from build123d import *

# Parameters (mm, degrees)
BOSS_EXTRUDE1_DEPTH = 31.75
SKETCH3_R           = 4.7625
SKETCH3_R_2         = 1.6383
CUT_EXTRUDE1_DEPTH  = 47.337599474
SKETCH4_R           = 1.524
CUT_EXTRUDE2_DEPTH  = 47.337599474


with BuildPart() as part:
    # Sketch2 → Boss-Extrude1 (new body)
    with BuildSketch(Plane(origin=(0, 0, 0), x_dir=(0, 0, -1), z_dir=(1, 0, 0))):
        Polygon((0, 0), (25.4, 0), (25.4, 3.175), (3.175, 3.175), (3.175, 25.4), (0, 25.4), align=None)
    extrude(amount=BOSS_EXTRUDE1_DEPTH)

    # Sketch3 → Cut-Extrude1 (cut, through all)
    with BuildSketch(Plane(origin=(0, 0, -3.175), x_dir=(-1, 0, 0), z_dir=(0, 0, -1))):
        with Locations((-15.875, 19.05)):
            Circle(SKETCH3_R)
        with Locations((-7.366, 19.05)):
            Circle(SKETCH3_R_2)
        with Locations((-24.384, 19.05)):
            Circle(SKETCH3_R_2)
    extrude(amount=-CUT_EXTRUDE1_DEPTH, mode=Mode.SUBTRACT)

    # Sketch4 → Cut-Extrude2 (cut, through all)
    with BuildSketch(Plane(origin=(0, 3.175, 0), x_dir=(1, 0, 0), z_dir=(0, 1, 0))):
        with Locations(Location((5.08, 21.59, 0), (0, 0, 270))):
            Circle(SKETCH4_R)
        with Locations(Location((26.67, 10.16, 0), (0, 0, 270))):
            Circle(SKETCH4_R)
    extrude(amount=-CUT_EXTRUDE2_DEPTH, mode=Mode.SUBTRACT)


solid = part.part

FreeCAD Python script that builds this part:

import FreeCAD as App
import Part
import Sketcher
Q = App.Units.Quantity


def add_polygon(sketch, points):
    """Adds a closed chain of lines whose ends are joined by coincident constraints."""
    first, n = sketch.GeometryCount, len(points)
    for a, b in zip(points, points[1:] + points[:1]):
        sketch.addGeometry(Part.LineSegment(App.Vector(*a, 0), App.Vector(*b, 0)), False)
    for i in range(n):
        sketch.addConstraint(Sketcher.Constraint("Coincident", first + i, 2, first + (i + 1) % n, 1))

doc = App.newDocument("Part")
body = doc.addObject("PartDesign::Body", "Body")

# Sketch on YZ plane
sketch1 = body.newObject("Sketcher::SketchObject", "Sketch")
sketch1.AttachmentSupport = (doc.getObject("YZ_Plane"), [""])
sketch1.MapMode = "FlatFace"
add_polygon(sketch1, [(0, 0), (0, -25.4), (3.2, -25.4), (3.2, -3.2), (25.4, -3.2), (25.4, 0)])  # lines 0-5
sketch1.addConstraint([
    Sketcher.Constraint("Vertical", 0),
    Sketcher.Constraint("Horizontal", 1),
    Sketcher.Constraint("Vertical", 2),
    Sketcher.Constraint("Horizontal", 3),
    Sketcher.Constraint("Vertical", 4),
    Sketcher.Constraint("Horizontal", 5),
    Sketcher.Constraint("Coincident", 5, 2, -1, 1),
    Sketcher.Constraint("Equal", 5, 0),
    Sketcher.Constraint("Equal", 3, 2),
    Sketcher.Constraint("DistanceX", 5, 2, 5, 1, Q("1 in")),
    Sketcher.Constraint("DistanceX", 1, 1, 1, 2, Q("0.125 in")),
])
pad1 = body.newObject("PartDesign::Pad", "Pad")
pad1.Profile = sketch1
pad1.Length = Q("1.25 in")

# Sketch on XY plane
sketch2 = body.newObject("Sketcher::SketchObject", "Sketch001")
sketch2.AttachmentSupport = (doc.getObject("XY_Plane"), [""])
sketch2.MapMode = "FlatFace"
sketch2.AttachmentOffset = App.Placement(App.Vector(0, 0, -0.125 * 25.4), App.Rotation())
sketch2.addGeometry([
    Part.Circle(App.Vector(15.9, 19.1, 0), App.Vector(0, 0, 1), 4.8),
    Part.Circle(App.Vector(7.4, 19.1, 0), App.Vector(0, 0, 1), 1.6),
    Part.Circle(App.Vector(24.4, 19.1, 0), App.Vector(0, 0, 1), 1.6),
], False)
sketch2.addConstraint([
    Sketcher.Constraint("Equal", 1, 2),
    Sketcher.Constraint("Horizontal", 0, 3, 1, 3),
    Sketcher.Constraint("Horizontal", 1, 3, 2, 3),
    Sketcher.Constraint("Diameter", 0, Q("0.375 in")),
    Sketcher.Constraint("Diameter", 1, Q("0.129 in")),
    Sketcher.Constraint("DistanceY", -1, 1, 0, 3, Q("0.75 in")),
    Sketcher.Constraint("DistanceX", -1, 1, 1, 3, Q("0.29 in")),
    Sketcher.Constraint("DistanceX", -1, 1, 2, 3, Q("0.96 in")),
    Sketcher.Constraint("DistanceX", -1, 1, 0, 3, Q("0.625 in")),
])
pocket1 = body.newObject("PartDesign::Pocket", "Pocket")
pocket1.Profile = sketch2
pocket1.Type = "ThroughAll"
pocket1.Reversed = True

# Sketch on XZ plane
sketch3 = body.newObject("Sketcher::SketchObject", "Sketch002")
sketch3.AttachmentSupport = (doc.getObject("XZ_Plane"), [""])
sketch3.MapMode = "FlatFace"
sketch3.AttachmentOffset = App.Placement(App.Vector(0, 0, -0.125 * 25.4), App.Rotation())
sketch3.addGeometry([
    Part.Circle(App.Vector(5.1, -21.6, 0), App.Vector(0, 0, 1), 1.5),
    Part.Circle(App.Vector(26.7, -10.2, 0), App.Vector(0, 0, 1), 1.5),
], False)
sketch3.addConstraint([
    Sketcher.Constraint("Equal", 0, 1),
    Sketcher.Constraint("Diameter", 0, Q("0.12 in")),
    Sketcher.Constraint("DistanceX", -1, 1, 0, 3, Q("0.2 in")),
    Sketcher.Constraint("DistanceY", 1, 3, -1, 1, Q("0.4 in")),
    Sketcher.Constraint("DistanceY", 0, 3, -1, 1, Q("0.85 in")),
    Sketcher.Constraint("DistanceX", -1, 1, 1, 3, Q("1.05 in")),
])
pocket2 = body.newObject("PartDesign::Pocket", "Pocket001")
pocket2.Profile = sketch3
pocket2.Type = "ThroughAll"
pocket2.Reversed = True

doc.recompute()
